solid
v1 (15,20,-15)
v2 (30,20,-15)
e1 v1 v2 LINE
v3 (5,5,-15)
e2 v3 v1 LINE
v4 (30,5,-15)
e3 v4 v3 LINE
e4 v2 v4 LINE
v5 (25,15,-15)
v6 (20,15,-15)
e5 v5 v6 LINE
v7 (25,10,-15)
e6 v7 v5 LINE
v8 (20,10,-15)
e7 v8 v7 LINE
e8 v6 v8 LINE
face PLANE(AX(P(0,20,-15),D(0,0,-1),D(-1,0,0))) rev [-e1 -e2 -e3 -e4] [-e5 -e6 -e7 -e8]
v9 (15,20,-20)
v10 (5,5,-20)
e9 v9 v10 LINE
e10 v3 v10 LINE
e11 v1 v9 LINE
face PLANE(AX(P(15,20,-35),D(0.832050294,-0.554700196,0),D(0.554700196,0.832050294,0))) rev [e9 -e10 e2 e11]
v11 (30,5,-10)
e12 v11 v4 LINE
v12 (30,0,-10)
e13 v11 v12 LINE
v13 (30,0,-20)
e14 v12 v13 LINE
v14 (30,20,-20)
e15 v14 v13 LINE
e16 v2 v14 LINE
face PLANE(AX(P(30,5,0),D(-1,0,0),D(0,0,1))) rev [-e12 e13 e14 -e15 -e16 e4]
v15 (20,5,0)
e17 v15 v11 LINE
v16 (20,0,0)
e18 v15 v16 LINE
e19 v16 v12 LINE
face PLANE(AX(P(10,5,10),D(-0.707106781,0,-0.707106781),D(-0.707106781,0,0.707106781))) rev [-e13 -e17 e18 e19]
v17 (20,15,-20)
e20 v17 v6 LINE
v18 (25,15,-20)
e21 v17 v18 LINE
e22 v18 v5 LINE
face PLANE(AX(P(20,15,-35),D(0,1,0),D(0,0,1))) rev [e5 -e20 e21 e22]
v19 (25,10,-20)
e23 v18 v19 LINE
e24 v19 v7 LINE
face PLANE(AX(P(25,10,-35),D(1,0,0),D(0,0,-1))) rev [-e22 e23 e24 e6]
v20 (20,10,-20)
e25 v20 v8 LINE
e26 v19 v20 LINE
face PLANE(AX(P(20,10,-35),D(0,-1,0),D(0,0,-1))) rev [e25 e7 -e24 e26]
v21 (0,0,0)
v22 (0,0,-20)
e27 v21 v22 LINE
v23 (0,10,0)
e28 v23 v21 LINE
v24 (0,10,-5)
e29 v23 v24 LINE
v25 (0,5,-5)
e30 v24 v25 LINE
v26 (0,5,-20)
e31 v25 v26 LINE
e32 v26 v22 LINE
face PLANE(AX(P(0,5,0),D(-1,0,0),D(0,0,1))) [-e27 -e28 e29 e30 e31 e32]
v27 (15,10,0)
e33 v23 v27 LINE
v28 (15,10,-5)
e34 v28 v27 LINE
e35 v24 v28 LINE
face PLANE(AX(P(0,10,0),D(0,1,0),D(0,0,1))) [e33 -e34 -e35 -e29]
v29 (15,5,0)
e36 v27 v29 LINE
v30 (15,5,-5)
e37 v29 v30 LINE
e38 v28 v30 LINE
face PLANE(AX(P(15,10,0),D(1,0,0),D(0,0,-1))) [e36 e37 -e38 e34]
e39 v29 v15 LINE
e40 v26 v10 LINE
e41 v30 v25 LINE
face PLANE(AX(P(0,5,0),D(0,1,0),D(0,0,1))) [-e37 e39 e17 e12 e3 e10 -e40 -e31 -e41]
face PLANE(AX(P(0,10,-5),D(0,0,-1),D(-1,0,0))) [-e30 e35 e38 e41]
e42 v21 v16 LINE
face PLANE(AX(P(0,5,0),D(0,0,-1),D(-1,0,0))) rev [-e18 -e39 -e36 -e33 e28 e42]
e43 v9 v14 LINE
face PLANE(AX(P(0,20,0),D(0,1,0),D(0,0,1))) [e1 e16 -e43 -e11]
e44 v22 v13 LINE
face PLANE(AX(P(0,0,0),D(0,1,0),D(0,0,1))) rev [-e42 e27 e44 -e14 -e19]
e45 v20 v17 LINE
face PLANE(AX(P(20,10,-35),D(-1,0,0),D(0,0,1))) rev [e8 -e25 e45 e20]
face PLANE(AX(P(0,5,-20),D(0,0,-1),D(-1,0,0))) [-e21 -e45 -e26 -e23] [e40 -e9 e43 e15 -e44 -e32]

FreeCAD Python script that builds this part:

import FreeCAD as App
import Part
import Sketcher
from FreeCAD import Vector


def add_polygon(sketch, points):
    """Adds a closed chain of lines whose ends are joined by coincident constraints."""
    first, n = sketch.GeometryCount, len(points)
    for a, b in zip(points, points[1:] + points[:1]):
        sketch.addGeometry(Part.LineSegment(App.Vector(*a, 0), App.Vector(*b, 0)), False)
    for i in range(n):
        sketch.addConstraint(Sketcher.Constraint("Coincident", first + i, 2, first + (i + 1) % n, 1))

doc = App.newDocument("Part")
body = doc.addObject("PartDesign::Body", "Body")

# Sketch on XZ plane
sketch1 = body.newObject("Sketcher::SketchObject", "Sketch")
sketch1.AttachmentSupport = (doc.getObject("XZ_Plane"), [""])
sketch1.MapMode = "FlatFace"
add_polygon(sketch1, [(30, -20), (0, -20), (0, 0), (20, 0), (30, -10)])  # lines 0-4
sketch1.addConstraint([
    Sketcher.Constraint("Horizontal", 0),
    Sketcher.Constraint("Vertical", 1),
    Sketcher.Constraint("Horizontal", 2),
    Sketcher.Constraint("Vertical", 4),
    Sketcher.Constraint("Coincident", 1, 2, -1, 1),
    Sketcher.Constraint("Equal", 2, 1),
    Sketcher.Constraint("DistanceX", 0, 2, 0, 1, 30.0),
    Sketcher.Constraint("DistanceX", 2, 1, 2, 2, 20.0),
    Sketcher.Constraint("DistanceY", 4, 2, 4, 1, 10.0),
])
pad1 = body.newObject("PartDesign::Pad", "Pad")
pad1.Profile = sketch1
pad1.Length = 5
pad1.Reversed = True

# Sketch on XZ plane
sketch2 = body.newObject("Sketcher::SketchObject", "Sketch001")
sketch2.AttachmentSupport = (doc.getObject("XZ_Plane"), [""])
sketch2.MapMode = "FlatFace"
add_polygon(sketch2, [(0, -5), (0, 0), (15, 0), (15, -5)])  # lines 0-3
sketch2.addConstraint([
    Sketcher.Constraint("Vertical", 0),
    Sketcher.Constraint("Horizontal", 1),
    Sketcher.Constraint("Vertical", 2),
    Sketcher.Constraint("Horizontal", 3),
    Sketcher.Constraint("Coincident", 0, 2, -1, 1),
    Sketcher.Constraint("DistanceX", 1, 1, 1, 2, 15.0),
    Sketcher.Constraint("DistanceY", 0, 1, 0, 2, 5.0),
])
pad2 = body.newObject("PartDesign::Pad", "Pad001")
pad2.Profile = sketch2
pad2.Length = 10
pad2.Reversed = True

# Sketch on XZ plane
sketch3 = body.newObject("Sketcher::SketchObject", "Sketch002")
sketch3.AttachmentSupport = (doc.getObject("XZ_Plane"), [""])
sketch3.MapMode = "FlatFace"
add_polygon(sketch3, [(5, -20), (5, -15), (30, -15), (30, -20)])  # lines 0-3
sketch3.addConstraint([
    Sketcher.Constraint("Vertical", 0),
    Sketcher.Constraint("Horizontal", 1),
    Sketcher.Constraint("Vertical", 2),
    Sketcher.Constraint("Horizontal", 3),
    Sketcher.Constraint("DistanceX", 1, 1, 1, 2, 25.0),
    Sketcher.Constraint("DistanceY", 0, 1, 0, 2, 5.0),
    Sketcher.Constraint("DistanceX", -1, 1, 0, 2, 5.0),
    Sketcher.Constraint("DistanceY", 0, 2, -1, 1, 15.0),
])
pad3 = body.newObject("PartDesign::Pad", "Pad002")
pad3.Profile = sketch3
pad3.Length = 20
pad3.Reversed = True

# Sketch on XY plane
sketch4 = body.newObject("Sketcher::SketchObject", "Sketch003")
sketch4.AttachmentSupport = (doc.getObject("XY_Plane"), [""])
sketch4.MapMode = "FlatFace"
sketch4.AttachmentOffset = App.Placement(Vector(0, 0, -15), App.Rotation())
add_polygon(sketch4, [(20, 15), (20, 10), (25, 10), (25, 15)])  # lines 0-3
add_polygon(sketch4, [(15, 20), (5, 20), (5, 5)])  # lines 4-6
sketch4.addConstraint([
    Sketcher.Constraint("Vertical", 0),
    Sketcher.Constraint("Horizontal", 1),
    Sketcher.Constraint("Vertical", 2),
    Sketcher.Constraint("Horizontal", 3),
    Sketcher.Constraint("Horizontal", 4),
    Sketcher.Constraint("Vertical", 5),
    Sketcher.Constraint("Equal", 3, 0),
    Sketcher.Constraint("DistanceX", 1, 1, 1, 2, 5.0),
    Sketcher.Constraint("DistanceX", 4, 2, 4, 1, 10.0),
    Sketcher.Constraint("DistanceY", 5, 2, 5, 1, 15.0),
    Sketcher.Constraint("DistanceX", -1, 1, 0, 2, 20.0),
    Sketcher.Constraint("DistanceY", -1, 1, 0, 2, 10.0),
    Sketcher.Constraint("DistanceX", -1, 1, 4, 2, 5.0),
    Sketcher.Constraint("DistanceY", -1, 1, 4, 2, 20.0),
])
pocket1 = body.newObject("PartDesign::Pocket", "Pocket")
pocket1.Profile = sketch4
pocket1.Length = 20

doc.recompute()
